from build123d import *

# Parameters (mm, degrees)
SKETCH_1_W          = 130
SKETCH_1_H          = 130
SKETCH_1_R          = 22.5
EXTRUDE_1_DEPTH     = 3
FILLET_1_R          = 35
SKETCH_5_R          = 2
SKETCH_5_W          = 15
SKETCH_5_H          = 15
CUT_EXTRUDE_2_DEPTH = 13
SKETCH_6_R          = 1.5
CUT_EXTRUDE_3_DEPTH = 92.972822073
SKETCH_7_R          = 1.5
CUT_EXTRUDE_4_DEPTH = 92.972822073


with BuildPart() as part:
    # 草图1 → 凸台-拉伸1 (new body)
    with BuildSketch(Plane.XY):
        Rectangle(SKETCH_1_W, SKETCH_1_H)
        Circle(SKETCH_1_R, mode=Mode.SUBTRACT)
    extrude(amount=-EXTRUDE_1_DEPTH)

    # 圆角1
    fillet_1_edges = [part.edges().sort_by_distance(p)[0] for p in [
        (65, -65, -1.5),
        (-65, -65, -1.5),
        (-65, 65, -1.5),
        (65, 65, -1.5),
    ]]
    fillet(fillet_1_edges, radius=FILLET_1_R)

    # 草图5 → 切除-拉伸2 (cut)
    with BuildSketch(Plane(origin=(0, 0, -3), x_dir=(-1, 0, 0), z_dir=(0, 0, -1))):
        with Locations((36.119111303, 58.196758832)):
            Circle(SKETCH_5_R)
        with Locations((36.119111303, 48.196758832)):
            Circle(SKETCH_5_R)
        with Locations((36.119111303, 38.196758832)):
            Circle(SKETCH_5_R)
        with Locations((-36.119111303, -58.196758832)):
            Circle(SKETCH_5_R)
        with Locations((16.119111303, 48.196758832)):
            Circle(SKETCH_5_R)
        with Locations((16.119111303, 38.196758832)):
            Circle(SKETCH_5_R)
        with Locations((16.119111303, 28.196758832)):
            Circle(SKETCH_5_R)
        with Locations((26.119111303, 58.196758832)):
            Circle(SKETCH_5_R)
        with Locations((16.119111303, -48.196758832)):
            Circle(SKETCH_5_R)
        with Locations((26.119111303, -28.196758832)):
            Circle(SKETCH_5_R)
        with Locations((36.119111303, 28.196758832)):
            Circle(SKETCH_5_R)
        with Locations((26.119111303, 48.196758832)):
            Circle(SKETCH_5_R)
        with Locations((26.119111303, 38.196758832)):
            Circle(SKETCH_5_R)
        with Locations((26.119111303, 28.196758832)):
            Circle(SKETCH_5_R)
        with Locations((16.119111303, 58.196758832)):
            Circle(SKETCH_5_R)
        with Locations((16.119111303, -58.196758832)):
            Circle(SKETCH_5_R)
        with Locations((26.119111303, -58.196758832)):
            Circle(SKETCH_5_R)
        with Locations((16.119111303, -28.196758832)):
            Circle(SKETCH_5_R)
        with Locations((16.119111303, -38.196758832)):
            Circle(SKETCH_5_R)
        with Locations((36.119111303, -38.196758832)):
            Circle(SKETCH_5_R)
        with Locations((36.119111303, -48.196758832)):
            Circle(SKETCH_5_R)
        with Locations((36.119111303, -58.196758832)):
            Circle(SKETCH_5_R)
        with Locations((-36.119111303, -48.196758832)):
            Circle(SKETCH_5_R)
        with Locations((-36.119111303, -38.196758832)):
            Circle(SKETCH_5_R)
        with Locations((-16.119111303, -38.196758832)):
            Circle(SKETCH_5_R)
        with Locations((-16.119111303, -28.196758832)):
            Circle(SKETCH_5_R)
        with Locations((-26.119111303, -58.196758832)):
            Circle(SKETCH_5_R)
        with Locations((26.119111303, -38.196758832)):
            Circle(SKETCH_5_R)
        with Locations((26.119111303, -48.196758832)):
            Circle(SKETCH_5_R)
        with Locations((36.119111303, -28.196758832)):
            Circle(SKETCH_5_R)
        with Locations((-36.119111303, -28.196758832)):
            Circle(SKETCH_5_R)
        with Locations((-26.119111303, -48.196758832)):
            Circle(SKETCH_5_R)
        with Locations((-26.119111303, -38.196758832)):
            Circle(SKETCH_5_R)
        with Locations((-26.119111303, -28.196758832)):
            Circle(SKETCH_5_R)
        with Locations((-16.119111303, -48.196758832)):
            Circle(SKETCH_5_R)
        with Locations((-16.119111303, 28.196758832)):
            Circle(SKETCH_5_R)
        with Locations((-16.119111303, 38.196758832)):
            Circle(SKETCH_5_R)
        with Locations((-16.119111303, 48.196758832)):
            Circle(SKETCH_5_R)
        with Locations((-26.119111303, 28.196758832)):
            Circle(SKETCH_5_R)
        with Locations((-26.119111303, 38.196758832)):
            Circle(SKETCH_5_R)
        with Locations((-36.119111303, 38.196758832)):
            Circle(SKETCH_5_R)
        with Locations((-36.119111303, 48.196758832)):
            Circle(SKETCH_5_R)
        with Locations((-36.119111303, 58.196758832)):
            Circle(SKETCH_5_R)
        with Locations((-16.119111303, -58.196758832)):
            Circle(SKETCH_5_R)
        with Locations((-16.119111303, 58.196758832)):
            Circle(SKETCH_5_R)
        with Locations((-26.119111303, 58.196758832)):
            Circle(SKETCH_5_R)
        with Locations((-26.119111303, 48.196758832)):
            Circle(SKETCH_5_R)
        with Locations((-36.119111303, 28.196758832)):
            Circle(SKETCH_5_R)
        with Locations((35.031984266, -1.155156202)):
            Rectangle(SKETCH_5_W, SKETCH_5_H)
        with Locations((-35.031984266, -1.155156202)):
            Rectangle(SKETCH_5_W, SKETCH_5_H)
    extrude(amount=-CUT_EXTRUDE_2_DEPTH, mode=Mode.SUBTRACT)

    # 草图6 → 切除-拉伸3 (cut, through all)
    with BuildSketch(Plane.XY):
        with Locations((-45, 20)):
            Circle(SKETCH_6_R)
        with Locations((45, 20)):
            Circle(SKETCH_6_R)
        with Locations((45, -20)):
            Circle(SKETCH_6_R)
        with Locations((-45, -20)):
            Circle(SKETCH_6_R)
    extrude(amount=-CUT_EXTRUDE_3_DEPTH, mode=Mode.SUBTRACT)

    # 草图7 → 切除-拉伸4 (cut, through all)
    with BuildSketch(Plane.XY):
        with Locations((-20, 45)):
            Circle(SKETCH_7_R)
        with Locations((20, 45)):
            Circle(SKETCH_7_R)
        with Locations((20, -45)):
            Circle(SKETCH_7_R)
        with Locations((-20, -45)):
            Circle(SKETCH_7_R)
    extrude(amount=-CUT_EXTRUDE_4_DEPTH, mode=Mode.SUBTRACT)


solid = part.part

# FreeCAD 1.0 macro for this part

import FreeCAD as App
import Part
import Sketcher
from FreeCAD import Vector
Q = App.Units.Quantity


def edges_at(feature, points):
    """Names of the edges that pass closest to the given points."""
    edges = feature.Shape.Edges
    near = lambda p: min(range(len(edges)), key=lambda i: edges[i].distToShape(Part.Vertex(*p))[0])
    return sorted({f"Edge{near(p) + 1}" for p in points})


def add_polygon(sketch, points):
    """Adds a closed chain of lines whose ends are joined by coincident constraints."""
    first, n = sketch.GeometryCount, len(points)
    for a, b in zip(points, points[1:] + points[:1]):
        sketch.addGeometry(Part.LineSegment(App.Vector(*a, 0), App.Vector(*b, 0)), False)
    for i in range(n):
        sketch.addConstraint(Sketcher.Constraint("Coincident", first + i, 2, first + (i + 1) % n, 1))

doc = App.newDocument("Part")
body = doc.addObject("PartDesign::Body", "Body")

sketch1 = body.newObject("Sketcher::SketchObject", "Sketch")
sketch1.AttachmentSupport = (doc.getObject("XY_Plane"), [""])
sketch1.MapMode = "FlatFace"
add_polygon(sketch1, [(-65, 65), (-65, -65), (65, -65), (65, 65)])
sketch1.addGeometry(Part.Circle(Vector(0, 0, 0), Vector(0, 0, 1), 22), False)
sketch1.addConstraint([
    Sketcher.Constraint("Vertical", 0),
    Sketcher.Constraint("Horizontal", 1),
    Sketcher.Constraint("Vertical", 2),
    Sketcher.Constraint("Horizontal", 3),
    Sketcher.Constraint("Coincident", 4, 3, -1, 1),
    Sketcher.Constraint("Symmetric", 0, 2, 2, 2, -1, 1),
    Sketcher.Constraint("Equal", 3, 0),
    Sketcher.Constraint("Diameter", 4, Q("45 mm")),
    Sketcher.Constraint("DistanceX", 1, 1, 1, 2, Q("130 mm")),
])
pad1 = body.newObject("PartDesign::Pad", "Pad")
pad1.Profile = sketch1
pad1.Length = 3
pad1.Reversed = True
doc.recompute()

fillet = body.newObject("PartDesign::Fillet", "Fillet")
fillet.Base = (pad1, edges_at(pad1, [
    (65, -65, -1.5),
    (-65, -65, -1.5),
    (-65, 65, -1.5),
    (65, 65, -1.5),
]))
fillet.Radius = 35

sketch2 = body.newObject("Sketcher::SketchObject", "Sketch001")
sketch2.AttachmentSupport = (doc.getObject("XY_Plane"), [""])
sketch2.MapMode = "FlatFace"
sketch2.AttachmentOffset = App.Placement(Vector(0, 0, -3), App.Rotation())
sketch2.addGeometry(Part.Circle(Vector(-36.1, 58.2, 0), Vector(0, 0, 1), 2), False)
sketch2.addGeometry(Part.Circle(Vector(-36.1, 48.2, 0), Vector(0, 0, 1), 2), False)
sketch2.addGeometry(Part.Circle(Vector(-36.1, 38.2, 0), Vector(0, 0, 1), 2), False)
sketch2.addGeometry(Part.Circle(Vector(36.1, -58.2, 0), Vector(0, 0, 1), 2), False)
sketch2.addGeometry(Part.Circle(Vector(-16.1, 48.2, 0), Vector(0, 0, 1), 2), False)
sketch2.addGeometry(Part.Circle(Vector(-16.1, 38.2, 0), Vector(0, 0, 1), 2), False)
sketch2.addGeometry(Part.Circle(Vector(-16.1, 28.2, 0), Vector(0, 0, 1), 2), False)
sketch2.addGeometry(Part.Circle(Vector(-26.1, 58.2, 0), Vector(0, 0, 1), 2), False)
sketch2.addGeometry(Part.Circle(Vector(-16.1, -48.2, 0), Vector(0, 0, 1), 2), False)
sketch2.addGeometry(Part.Circle(Vector(-26.1, -28.2, 0), Vector(0, 0, 1), 2), False)
sketch2.addGeometry(Part.Circle(Vector(-36.1, 28.2, 0), Vector(0, 0, 1), 2), False)
sketch2.addGeometry(Part.Circle(Vector(-26.1, 48.2, 0), Vector(0, 0, 1), 2), False)
sketch2.addGeometry(Part.Circle(Vector(-26.1, 38.2, 0), Vector(0, 0, 1), 2), False)
sketch2.addGeometry(Part.Circle(Vector(-26.1, 28.2, 0), Vector(0, 0, 1), 2), False)
sketch2.addGeometry(Part.Circle(Vector(-16.1, 58.2, 0), Vector(0, 0, 1), 2), False)
sketch2.addGeometry(Part.Circle(Vector(-16.1, -58.2, 0), Vector(0, 0, 1), 2), False)
sketch2.addGeometry(Part.Circle(Vector(-26.1, -58.2, 0), Vector(0, 0, 1), 2), False)
sketch2.addGeometry(Part.Circle(Vector(-16.1, -28.2, 0), Vector(0, 0, 1), 2), False)
sketch2.addGeometry(Part.Circle(Vector(-16.1, -38.2, 0), Vector(0, 0, 1), 2), False)
sketch2.addGeometry(Part.Circle(Vector(-36.1, -38.2, 0), Vector(0, 0, 1), 2), False)
sketch2.addGeometry(Part.Circle(Vector(-36.1, -48.2, 0), Vector(0, 0, 1), 2), False)
sketch2.addGeometry(Part.Circle(Vector(-36.1, -58.2, 0), Vector(0, 0, 1), 2), False)
sketch2.addGeometry(Part.Circle(Vector(36.1, -48.2, 0), Vector(0, 0, 1), 2), False)
sketch2.addGeometry(Part.Circle(Vector(36.1, -38.2, 0), Vector(0, 0, 1), 2), False)
sketch2.addGeometry(Part.Circle(Vector(16.1, -38.2, 0), Vector(0, 0, 1), 2), False)
sketch2.addGeometry(Part.Circle(Vector(16.1, -28.2, 0), Vector(0, 0, 1), 2), False)
sketch2.addGeometry(Part.Circle(Vector(26.1, -58.2, 0), Vector(0, 0, 1), 2), False)
sketch2.addGeometry(Part.Circle(Vector(-26.1, -38.2, 0), Vector(0, 0, 1), 2), False)
sketch2.addGeometry(Part.Circle(Vector(-26.1, -48.2, 0), Vector(0, 0, 1), 2), False)
sketch2.addGeometry(Part.Circle(Vector(-36.1, -28.2, 0), Vector(0, 0, 1), 2), False)
sketch2.addGeometry(Part.Circle(Vector(36.1, -28.2, 0), Vector(0, 0, 1), 2), False)
sketch2.addGeometry(Part.Circle(Vector(26.1, -48.2, 0), Vector(0, 0, 1), 2), False)
sketch2.addGeometry(Part.Circle(Vector(26.1, -38.2, 0), Vector(0, 0, 1), 2), False)
sketch2.addGeometry(Part.Circle(Vector(26.1, -28.2, 0), Vector(0, 0, 1), 2), False)
sketch2.addGeometry(Part.Circle(Vector(16.1, -48.2, 0), Vector(0, 0, 1), 2), False)
sketch2.addGeometry(Part.Circle(Vector(16.1, 28.2, 0), Vector(0, 0, 1), 2), False)
sketch2.addGeometry(Part.Circle(Vector(16.1, 38.2, 0), Vector(0, 0, 1), 2), False)
sketch2.addGeometry(Part.Circle(Vector(16.1, 48.2, 0), Vector(0, 0, 1), 2), False)
sketch2.addGeometry(Part.Circle(Vector(26.1, 28.2, 0), Vector(0, 0, 1), 2), False)
sketch2.addGeometry(Part.Circle(Vector(26.1, 38.2, 0), Vector(0, 0, 1), 2), False)
sketch2.addGeometry(Part.Circle(Vector(36.1, 38.2, 0), Vector(0, 0, 1), 2), False)
sketch2.addGeometry(Part.Circle(Vector(36.1, 48.2, 0), Vector(0, 0, 1), 2), False)
sketch2.addGeometry(Part.Circle(Vector(36.1, 58.2, 0), Vector(0, 0, 1), 2), False)
sketch2.addGeometry(Part.Circle(Vector(16.1, -58.2, 0), Vector(0, 0, 1), 2), False)
sketch2.addGeometry(Part.Circle(Vector(16.1, 58.2, 0), Vector(0, 0, 1), 2), False)
sketch2.addGeometry(Part.Circle(Vector(26.1, 58.2, 0), Vector(0, 0, 1), 2), False)
sketch2.addGeometry(Part.Circle(Vector(26.1, 48.2, 0), Vector(0, 0, 1), 2), False)
sketch2.addGeometry(Part.Circle(Vector(36.1, 28.2, 0), Vector(0, 0, 1), 2), False)
add_polygon(sketch2, [(-27.5, 6.3), (-27.5, -8.7), (-42.5, -8.7), (-42.5, 6.3)])
add_polygon(sketch2, [(42.5, 6.3), (42.5, -8.7), (27.5, -8.7), (27.5, 6.3)])
sketch2.addConstraint([
    Sketcher.Constraint("Vertical", 48),
    Sketcher.Constraint("Horizontal", 49),
    Sketcher.Constraint("Vertical", 50),
    Sketcher.Constraint("Horizontal", 51),
    Sketcher.Constraint("Vertical", 52),
    Sketcher.Constraint("Horizontal", 53),
    Sketcher.Constraint("Vertical", 54),
    Sketcher.Constraint("Horizontal", 55),
    Sketcher.Constraint("Equal", 0, 1),
    Sketcher.Constraint("Equal", 1, 2),
    Sketcher.Constraint("Equal", 2, 3),
    Sketcher.Constraint("Equal", 3, 4),
    Sketcher.Constraint("Equal", 4, 5),
    Sketcher.Constraint("Equal", 5, 6),
    Sketcher.Constraint("Equal", 6, 7),
    Sketcher.Constraint("Equal", 7, 8),
    Sketcher.Constraint("Equal", 8, 9),
    Sketcher.Constraint("Equal", 9, 10),
    Sketcher.Constraint("Equal", 10, 11),
    Sketcher.Constraint("Equal", 11, 12),
    Sketcher.Constraint("Equal", 12, 13),
    Sketcher.Constraint("Equal", 13, 14),
    Sketcher.Constraint("Equal", 14, 15),
    Sketcher.Constraint("Equal", 15, 16),
    Sketcher.Constraint("Equal", 16, 17),
    Sketcher.Constraint("Equal", 17, 18),
    Sketcher.Constraint("Equal", 18, 19),
    Sketcher.Constraint("Equal", 19, 20),
    Sketcher.Constraint("Equal", 20, 21),
    Sketcher.Constraint("Equal", 21, 22),
    Sketcher.Constraint("Equal", 22, 23),
    Sketcher.Constraint("Equal", 23, 24),
    Sketcher.Constraint("Equal", 24, 25),
    Sketcher.Constraint("Equal", 25, 26),
    Sketcher.Constraint("Equal", 26, 27),
    Sketcher.Constraint("Equal", 27, 28),
    Sketcher.Constraint("Equal", 28, 29),
    Sketcher.Constraint("Equal", 29, 30),
    Sketcher.Constraint("Equal", 30, 31),
    Sketcher.Constraint("Equal", 31, 32),
    Sketcher.Constraint("Equal", 32, 33),
    Sketcher.Constraint("Equal", 33, 34),
    Sketcher.Constraint("Equal", 34, 35),
    Sketcher.Constraint("Equal", 35, 36),
    Sketcher.Constraint("Equal", 36, 37),
    Sketcher.Constraint("Equal", 37, 38),
    Sketcher.Constraint("Equal", 38, 39),
    Sketcher.Constraint("Equal", 39, 40),
    Sketcher.Constraint("Equal", 40, 41),
    Sketcher.Constraint("Equal", 41, 42),
    Sketcher.Constraint("Equal", 42, 43),
    Sketcher.Constraint("Equal", 43, 44),
    Sketcher.Constraint("Equal", 44, 45),
    Sketcher.Constraint("Equal", 45, 46),
    Sketcher.Constraint("Equal", 46, 47),
    Sketcher.Constraint("Symmetric", 0, 3, 3, 3, -1, 1),
    Sketcher.Constraint("Symmetric", 1, 3, 22, 3, -1, 1),
    Sketcher.Constraint("Symmetric", 2, 3, 23, 3, -1, 1),
    Sketcher.Constraint("Symmetric", 5, 3, 24, 3, -1, 1),
    Sketcher.Constraint("Symmetric", 6, 3, 25, 3, -1, 1),
    Sketcher.Constraint("Symmetric", 7, 3, 26, 3, -1, 1),
    Sketcher.Constraint("Symmetric", 10, 3, 30, 3, -1, 1),
    Sketcher.Constraint("Symmetric", 11, 3, 31, 3, -1, 1),
    Sketcher.Constraint("Symmetric", 12, 3, 32, 3, -1, 1),
    Sketcher.Constraint("Symmetric", 13, 3, 33, 3, -1, 1),
    Sketcher.Constraint("Symmetric", 4, 3, 34, 3, -1, 1),
    Sketcher.Constraint("Symmetric", 17, 3, 35, 3, -1, 1),
    Sketcher.Constraint("Symmetric", 18, 3, 36, 3, -1, 1),
    Sketcher.Constraint("Symmetric", 8, 3, 37, 3, -1, 1),
    Sketcher.Constraint("Symmetric", 9, 3, 38, 3, -1, 1),
    Sketcher.Constraint("Symmetric", 27, 3, 39, 3, -1, 1),
    Sketcher.Constraint("Symmetric", 19, 3, 40, 3, -1, 1),
    Sketcher.Constraint("Symmetric", 20, 3, 41, 3, -1, 1),
    Sketcher.Constraint("Symmetric", 21, 3, 42, 3, -1, 1),
    Sketcher.Constraint("Symmetric", 14, 3, 43, 3, -1, 1),
    Sketcher.Constraint("Symmetric", 15, 3, 44, 3, -1, 1),
    Sketcher.Constraint("Symmetric", 16, 3, 45, 3, -1, 1),
    Sketcher.Constraint("Symmetric", 28, 3, 46, 3, -1, 1),
    Sketcher.Constraint("Symmetric", 29, 3, 47, 3, -1, 1),
    Sketcher.Constraint("Symmetric", 3, 3, 21, 3, -2),
    Sketcher.Constraint("Symmetric", 20, 3, 22, 3, -2),
    Sketcher.Constraint("Symmetric", 19, 3, 23, 3, -2),
    Sketcher.Constraint("Symmetric", 18, 3, 24, 3, -2),
    Sketcher.Constraint("Symmetric", 17, 3, 25, 3, -2),
    Sketcher.Constraint("Symmetric", 16, 3, 26, 3, -2),
    Sketcher.Constraint("Symmetric", 29, 3, 30, 3, -2),
    Sketcher.Constraint("Symmetric", 28, 3, 31, 3, -2),
    Sketcher.Constraint("Symmetric", 27, 3, 32, 3, -2),
    Sketcher.Constraint("Symmetric", 9, 3, 33, 3, -2),
    Sketcher.Constraint("Symmetric", 8, 3, 34, 3, -2),
    Sketcher.Constraint("Symmetric", 15, 3, 43, 3, -2),
    Sketcher.Constraint("Symmetric", 49, 2, 52, 2, -2),
    Sketcher.Constraint("Symmetric", 51, 2, 54, 2, -2),
    Sketcher.Constraint("Horizontal", 1, 3, 4, 3),
    Sketcher.Constraint("Horizontal", 2, 3, 5, 3),
    Sketcher.Constraint("Horizontal", 0, 3, 7, 3),
    Sketcher.Constraint("Horizontal", 6, 3, 10, 3),
    Sketcher.Constraint("Horizontal", 4, 3, 11, 3),
    Sketcher.Constraint("Horizontal", 5, 3, 12, 3),
    Sketcher.Constraint("Horizontal", 10, 3, 13, 3),
    Sketcher.Constraint("Horizontal", 7, 3, 14, 3),
    Sketcher.Constraint("Vertical", 0, 3, 1, 3),
    Sketcher.Constraint("Vertical", 1, 3, 2, 3),
    Sketcher.Constraint("Vertical", 4, 3, 5, 3),
    Sketcher.Constraint("Vertical", 5, 3, 6, 3),
    Sketcher.Constraint("Vertical", 7, 3, 9, 3),
    Sketcher.Constraint("Vertical", 2, 3, 10, 3),
    Sketcher.Constraint("Vertical", 9, 3, 11, 3),
    Sketcher.Constraint("Vertical", 11, 3, 12, 3),
    Sketcher.Constraint("Vertical", 8, 3, 14, 3),
    Sketcher.Constraint("Equal", 55, 48),
    Sketcher.Constraint("Diameter", 0, Q("4 mm")),
    Sketcher.Constraint("DistanceX", 49, 2, 49, 1, Q("15 mm")),
    Sketcher.Constraint("DistanceY", 1, 3, 0, 3, Q("10 mm")),
    Sketcher.Constraint("DistanceY", 2, 3, 1, 3, Q("10 mm")),
    Sketcher.Constraint("DistanceX", 1, 3, 4, 3, Q("20 mm")),
    Sketcher.Constraint("DistanceY", 6, 3, 5, 3, Q("10 mm")),
    Sketcher.Constraint("DistanceX", 0, 3, 7, 3, Q("10 mm")),
    Sketcher.Constraint("DistanceX", 0, 3, -1, 1, Q("36.119111 mm")),
    Sketcher.Constraint("DistanceY", -1, 1, 0, 3, Q("58.196759 mm")),
    Sketcher.Constraint("DistanceX", 48, 2, -1, 1, Q("27.531984 mm")),
    Sketcher.Constraint("DistanceY", 48, 2, -1, 1, Q("8.655156 mm")),
])
pocket1 = body.newObject("PartDesign::Pocket", "Pocket")
pocket1.Profile = sketch2
pocket1.Length = 13
pocket1.Reversed = True

sketch3 = body.newObject("Sketcher::SketchObject", "Sketch002")
sketch3.AttachmentSupport = (doc.getObject("XY_Plane"), [""])
sketch3.MapMode = "FlatFace"
sketch3.addGeometry([
    Part.Circle(Vector(-45, 20, 0), Vector(0, 0, 1), 1.5),
    Part.Circle(Vector(45, 20, 0), Vector(0, 0, 1), 1.5),
    Part.Circle(Vector(45, -20, 0), Vector(0, 0, 1), 1.5),
    Part.Circle(Vector(-45, -20, 0), Vector(0, 0, 1), 1.5),
], False)
sketch3.addConstraint([
    Sketcher.Constraint("Equal", 0, 1),
    Sketcher.Constraint("Equal", 1, 2),
    Sketcher.Constraint("Equal", 2, 3),
    Sketcher.Constraint("Symmetric", 0, 3, 2, 3, -1, 1),
    Sketcher.Constraint("Symmetric", 1, 3, 3, 3, -1, 1),
    Sketcher.Constraint("Symmetric", 0, 3, 1, 3, -2),
    Sketcher.Constraint("Diameter", 0, Q("3 mm")),
    Sketcher.Constraint("DistanceX", 0, 3, -1, 1, Q("45 mm")),
    Sketcher.Constraint("DistanceY", -1, 1, 0, 3, Q("20 mm")),
])
pocket2 = body.newObject("PartDesign::Pocket", "Pocket001")
pocket2.Profile = sketch3
pocket2.Type = "ThroughAll"

sketch4 = body.newObject("Sketcher::SketchObject", "Sketch003")
sketch4.AttachmentSupport = (doc.getObject("XY_Plane"), [""])
sketch4.MapMode = "FlatFace"
sketch4.addGeometry([
    Part.Circle(Vector(-20, 45, 0), Vector(0, 0, 1), 1.5),
    Part.Circle(Vector(20, 45, 0), Vector(0, 0, 1), 1.5),
    Part.Circle(Vector(20, -45, 0), Vector(0, 0, 1), 1.5),
    Part.Circle(Vector(-20, -45, 0), Vector(0, 0, 1), 1.5),
], False)
sketch4.addConstraint([
    Sketcher.Constraint("Equal", 0, 1),
    Sketcher.Constraint("Equal", 1, 2),
    Sketcher.Constraint("Equal", 2, 3),
    Sketcher.Constraint("Symmetric", 0, 3, 2, 3, -1, 1),
    Sketcher.Constraint("Symmetric", 1, 3, 3, 3, -1, 1),
    Sketcher.Constraint("Symmetric", 0, 3, 1, 3, -2),
    Sketcher.Constraint("Diameter", 0, Q("3 mm")),
    Sketcher.Constraint("DistanceX", 0, 3, -1, 1, Q("20 mm")),
    Sketcher.Constraint("DistanceY", -1, 1, 0, 3, Q("45 mm")),
])
pocket3 = body.newObject("PartDesign::Pocket", "Pocket002")
pocket3.Profile = sketch4
pocket3.Type = "ThroughAll"

doc.recompute()
